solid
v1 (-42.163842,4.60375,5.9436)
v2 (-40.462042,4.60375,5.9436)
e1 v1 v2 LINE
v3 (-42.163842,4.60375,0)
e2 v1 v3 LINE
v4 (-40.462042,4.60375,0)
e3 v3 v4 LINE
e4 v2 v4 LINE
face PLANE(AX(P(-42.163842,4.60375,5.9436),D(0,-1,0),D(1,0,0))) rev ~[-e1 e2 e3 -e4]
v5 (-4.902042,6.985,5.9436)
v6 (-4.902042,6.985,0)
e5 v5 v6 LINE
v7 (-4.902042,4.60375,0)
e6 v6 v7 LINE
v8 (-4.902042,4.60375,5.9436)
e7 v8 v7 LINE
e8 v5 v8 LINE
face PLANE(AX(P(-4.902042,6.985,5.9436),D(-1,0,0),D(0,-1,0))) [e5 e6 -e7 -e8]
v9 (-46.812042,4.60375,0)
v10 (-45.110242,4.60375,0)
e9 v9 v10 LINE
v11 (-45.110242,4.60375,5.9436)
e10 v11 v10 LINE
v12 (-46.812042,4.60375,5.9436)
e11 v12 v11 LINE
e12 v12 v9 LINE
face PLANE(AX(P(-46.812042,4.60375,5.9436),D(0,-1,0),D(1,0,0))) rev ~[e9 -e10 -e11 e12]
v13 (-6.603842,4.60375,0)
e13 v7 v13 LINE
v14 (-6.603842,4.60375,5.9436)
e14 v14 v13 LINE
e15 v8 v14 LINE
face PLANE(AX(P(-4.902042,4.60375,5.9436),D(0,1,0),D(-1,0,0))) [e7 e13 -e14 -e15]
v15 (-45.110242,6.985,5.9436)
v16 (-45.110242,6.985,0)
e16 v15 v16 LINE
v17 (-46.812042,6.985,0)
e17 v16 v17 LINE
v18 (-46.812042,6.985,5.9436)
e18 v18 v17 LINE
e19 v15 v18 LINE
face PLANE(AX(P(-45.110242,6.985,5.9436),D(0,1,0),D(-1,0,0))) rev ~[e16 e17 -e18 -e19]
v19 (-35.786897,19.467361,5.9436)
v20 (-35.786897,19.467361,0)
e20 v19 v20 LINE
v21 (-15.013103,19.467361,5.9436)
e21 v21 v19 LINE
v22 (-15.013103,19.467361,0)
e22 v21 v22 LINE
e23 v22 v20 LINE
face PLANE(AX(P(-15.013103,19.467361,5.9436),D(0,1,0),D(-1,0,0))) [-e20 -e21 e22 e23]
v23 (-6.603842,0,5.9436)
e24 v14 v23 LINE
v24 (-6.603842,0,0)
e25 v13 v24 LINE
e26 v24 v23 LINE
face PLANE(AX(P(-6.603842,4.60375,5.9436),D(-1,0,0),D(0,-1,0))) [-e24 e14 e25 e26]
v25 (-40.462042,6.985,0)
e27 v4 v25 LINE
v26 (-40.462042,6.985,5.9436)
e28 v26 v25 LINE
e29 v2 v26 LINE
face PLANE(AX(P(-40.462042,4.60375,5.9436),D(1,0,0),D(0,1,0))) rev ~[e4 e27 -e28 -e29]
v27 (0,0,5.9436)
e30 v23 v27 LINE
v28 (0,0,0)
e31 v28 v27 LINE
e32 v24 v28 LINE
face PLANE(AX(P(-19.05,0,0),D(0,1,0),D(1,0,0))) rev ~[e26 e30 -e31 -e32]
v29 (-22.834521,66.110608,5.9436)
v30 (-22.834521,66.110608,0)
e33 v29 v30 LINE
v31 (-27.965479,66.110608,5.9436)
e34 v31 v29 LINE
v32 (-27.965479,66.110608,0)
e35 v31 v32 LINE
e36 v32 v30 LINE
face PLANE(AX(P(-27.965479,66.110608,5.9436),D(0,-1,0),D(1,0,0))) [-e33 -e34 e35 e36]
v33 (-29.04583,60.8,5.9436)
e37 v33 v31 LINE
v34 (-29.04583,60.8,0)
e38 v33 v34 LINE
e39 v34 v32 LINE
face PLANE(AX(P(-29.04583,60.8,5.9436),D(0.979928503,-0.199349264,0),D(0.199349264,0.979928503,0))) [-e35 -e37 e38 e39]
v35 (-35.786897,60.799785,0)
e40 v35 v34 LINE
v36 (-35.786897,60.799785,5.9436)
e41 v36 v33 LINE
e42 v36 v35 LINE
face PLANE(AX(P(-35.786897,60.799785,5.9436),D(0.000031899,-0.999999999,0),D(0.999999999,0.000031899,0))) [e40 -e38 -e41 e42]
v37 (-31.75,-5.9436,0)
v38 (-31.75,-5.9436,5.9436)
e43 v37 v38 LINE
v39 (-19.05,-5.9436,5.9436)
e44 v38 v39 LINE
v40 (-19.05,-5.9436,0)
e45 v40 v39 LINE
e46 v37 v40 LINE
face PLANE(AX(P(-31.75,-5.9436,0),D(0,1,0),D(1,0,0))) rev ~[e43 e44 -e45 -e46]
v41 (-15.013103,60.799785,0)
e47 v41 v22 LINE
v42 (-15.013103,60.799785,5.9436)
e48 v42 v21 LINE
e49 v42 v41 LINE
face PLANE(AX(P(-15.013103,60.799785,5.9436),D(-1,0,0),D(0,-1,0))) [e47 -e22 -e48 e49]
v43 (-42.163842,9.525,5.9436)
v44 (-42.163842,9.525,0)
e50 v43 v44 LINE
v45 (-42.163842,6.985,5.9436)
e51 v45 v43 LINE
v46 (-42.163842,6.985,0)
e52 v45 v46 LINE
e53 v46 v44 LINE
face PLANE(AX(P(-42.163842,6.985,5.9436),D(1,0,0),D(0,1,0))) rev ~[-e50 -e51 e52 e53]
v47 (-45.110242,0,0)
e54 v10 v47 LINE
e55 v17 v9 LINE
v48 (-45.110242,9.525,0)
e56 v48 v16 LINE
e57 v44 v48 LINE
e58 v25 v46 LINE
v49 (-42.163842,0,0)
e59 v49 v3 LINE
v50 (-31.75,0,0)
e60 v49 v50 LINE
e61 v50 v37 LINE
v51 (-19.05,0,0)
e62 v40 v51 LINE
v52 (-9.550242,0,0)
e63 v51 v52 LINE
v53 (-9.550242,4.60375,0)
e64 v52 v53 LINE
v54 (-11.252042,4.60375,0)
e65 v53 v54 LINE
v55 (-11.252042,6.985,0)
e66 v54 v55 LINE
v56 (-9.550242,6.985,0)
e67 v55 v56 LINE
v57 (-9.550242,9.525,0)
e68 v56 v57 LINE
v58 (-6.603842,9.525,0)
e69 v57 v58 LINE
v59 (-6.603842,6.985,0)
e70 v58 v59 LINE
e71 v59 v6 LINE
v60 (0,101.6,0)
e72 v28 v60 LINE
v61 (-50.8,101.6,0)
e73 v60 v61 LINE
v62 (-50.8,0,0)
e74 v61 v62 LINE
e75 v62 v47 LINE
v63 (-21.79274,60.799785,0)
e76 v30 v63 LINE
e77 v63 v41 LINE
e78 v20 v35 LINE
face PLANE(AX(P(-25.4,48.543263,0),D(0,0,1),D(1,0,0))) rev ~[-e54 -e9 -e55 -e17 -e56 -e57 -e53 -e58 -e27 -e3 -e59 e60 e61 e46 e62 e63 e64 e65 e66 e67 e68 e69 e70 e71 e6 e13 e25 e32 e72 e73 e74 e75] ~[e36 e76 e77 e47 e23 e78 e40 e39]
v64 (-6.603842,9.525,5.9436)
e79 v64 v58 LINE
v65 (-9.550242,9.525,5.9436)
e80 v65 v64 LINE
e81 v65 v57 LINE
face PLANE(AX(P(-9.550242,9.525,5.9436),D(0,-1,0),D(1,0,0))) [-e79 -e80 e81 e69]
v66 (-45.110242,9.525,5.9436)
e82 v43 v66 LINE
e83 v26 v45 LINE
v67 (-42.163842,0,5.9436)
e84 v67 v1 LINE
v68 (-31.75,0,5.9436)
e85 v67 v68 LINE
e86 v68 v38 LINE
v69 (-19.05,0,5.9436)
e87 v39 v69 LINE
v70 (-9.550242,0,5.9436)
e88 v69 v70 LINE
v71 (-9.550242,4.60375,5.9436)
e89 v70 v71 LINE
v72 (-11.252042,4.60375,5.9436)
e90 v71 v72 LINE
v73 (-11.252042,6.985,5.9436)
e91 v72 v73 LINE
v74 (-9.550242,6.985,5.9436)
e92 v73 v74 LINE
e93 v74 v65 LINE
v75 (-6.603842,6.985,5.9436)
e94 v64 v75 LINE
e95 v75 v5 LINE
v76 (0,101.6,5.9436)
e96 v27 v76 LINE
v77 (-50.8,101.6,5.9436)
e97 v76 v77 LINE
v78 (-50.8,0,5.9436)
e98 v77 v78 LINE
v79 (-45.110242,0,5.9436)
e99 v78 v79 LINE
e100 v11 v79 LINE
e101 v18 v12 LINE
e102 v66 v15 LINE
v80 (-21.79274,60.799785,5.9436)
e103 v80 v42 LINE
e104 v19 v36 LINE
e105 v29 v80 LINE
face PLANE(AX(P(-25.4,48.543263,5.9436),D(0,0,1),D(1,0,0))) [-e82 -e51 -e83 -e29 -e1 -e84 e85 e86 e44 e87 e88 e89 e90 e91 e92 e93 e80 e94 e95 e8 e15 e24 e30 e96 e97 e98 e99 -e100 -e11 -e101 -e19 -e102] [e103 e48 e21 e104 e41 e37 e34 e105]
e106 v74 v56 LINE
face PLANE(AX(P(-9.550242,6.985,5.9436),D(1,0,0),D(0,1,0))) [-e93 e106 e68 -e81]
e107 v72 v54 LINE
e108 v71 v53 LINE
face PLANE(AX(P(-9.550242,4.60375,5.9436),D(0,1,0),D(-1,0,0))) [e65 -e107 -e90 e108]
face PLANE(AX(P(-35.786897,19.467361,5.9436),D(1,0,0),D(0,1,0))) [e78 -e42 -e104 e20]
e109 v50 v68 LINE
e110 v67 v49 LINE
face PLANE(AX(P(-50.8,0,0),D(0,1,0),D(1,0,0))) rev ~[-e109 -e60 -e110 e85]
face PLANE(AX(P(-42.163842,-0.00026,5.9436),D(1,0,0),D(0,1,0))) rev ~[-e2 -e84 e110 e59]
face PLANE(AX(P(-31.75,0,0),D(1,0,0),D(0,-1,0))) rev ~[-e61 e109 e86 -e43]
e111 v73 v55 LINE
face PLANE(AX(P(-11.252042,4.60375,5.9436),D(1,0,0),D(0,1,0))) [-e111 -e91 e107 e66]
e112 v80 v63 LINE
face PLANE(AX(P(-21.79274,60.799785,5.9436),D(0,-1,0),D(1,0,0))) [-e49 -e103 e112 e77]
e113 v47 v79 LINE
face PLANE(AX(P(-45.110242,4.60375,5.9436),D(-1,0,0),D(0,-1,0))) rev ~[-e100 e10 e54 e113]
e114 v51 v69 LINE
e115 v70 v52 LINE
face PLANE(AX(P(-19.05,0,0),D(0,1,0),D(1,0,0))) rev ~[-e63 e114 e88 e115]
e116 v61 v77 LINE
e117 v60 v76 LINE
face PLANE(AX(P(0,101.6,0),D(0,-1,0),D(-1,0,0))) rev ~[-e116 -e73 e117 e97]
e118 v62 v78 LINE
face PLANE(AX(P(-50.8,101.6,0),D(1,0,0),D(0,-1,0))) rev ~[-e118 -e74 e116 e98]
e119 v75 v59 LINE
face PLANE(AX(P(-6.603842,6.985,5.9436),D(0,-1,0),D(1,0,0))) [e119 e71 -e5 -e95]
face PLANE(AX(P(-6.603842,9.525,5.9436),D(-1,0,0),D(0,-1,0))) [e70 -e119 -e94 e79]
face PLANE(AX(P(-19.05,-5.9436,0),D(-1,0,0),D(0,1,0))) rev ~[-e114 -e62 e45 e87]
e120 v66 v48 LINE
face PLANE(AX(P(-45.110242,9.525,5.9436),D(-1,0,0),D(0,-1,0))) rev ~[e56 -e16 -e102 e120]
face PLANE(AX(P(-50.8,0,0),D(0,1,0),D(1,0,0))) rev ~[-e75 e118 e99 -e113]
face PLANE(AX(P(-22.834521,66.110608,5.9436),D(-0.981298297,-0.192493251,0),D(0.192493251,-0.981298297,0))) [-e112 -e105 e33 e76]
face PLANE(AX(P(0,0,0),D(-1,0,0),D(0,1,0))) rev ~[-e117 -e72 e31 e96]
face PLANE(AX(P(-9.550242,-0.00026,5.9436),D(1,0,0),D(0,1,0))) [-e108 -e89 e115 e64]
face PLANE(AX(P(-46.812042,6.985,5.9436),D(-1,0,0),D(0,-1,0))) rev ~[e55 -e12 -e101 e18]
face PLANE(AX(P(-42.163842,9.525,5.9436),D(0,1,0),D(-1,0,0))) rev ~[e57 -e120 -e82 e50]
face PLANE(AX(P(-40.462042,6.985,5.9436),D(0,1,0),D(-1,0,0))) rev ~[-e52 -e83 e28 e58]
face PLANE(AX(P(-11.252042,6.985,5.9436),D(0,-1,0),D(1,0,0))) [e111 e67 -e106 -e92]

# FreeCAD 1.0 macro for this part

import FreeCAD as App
import Part
import Sketcher
Q = App.Units.Quantity


def add_polygon(sketch, points):
    """Adds a closed chain of lines whose ends are joined by coincident constraints."""
    first, n = sketch.GeometryCount, len(points)
    for a, b in zip(points, points[1:] + points[:1]):
        sketch.addGeometry(Part.LineSegment(App.Vector(*a, 0), App.Vector(*b, 0)), False)
    for i in range(n):
        sketch.addConstraint(Sketcher.Constraint("Coincident", first + i, 2, first + (i + 1) % n, 1))

doc = App.newDocument("Part")
params = doc.addObject("Spreadsheet::Sheet", "Params")
for row, (alias, value) in enumerate([
    ("sketch1_width", "2 in"),
    ("sketch1_height", "4 in"),
    ("sketch1_width2", "0.5 in"),
    ("sketch1_height2", "0.234 in"),
    ("pad1_length", "0.234 in"),
    ("sketch3_height", "0.1 in"),
    ("sketch3_width", "0.116 in"),
    ("sketch3_width2", "0.067 in"),
    ("sketch3_height2", "0.09375 in"),
], start=1):
    params.set(f"A{row}", alias)
    params.set(f"B{row}", "=" + value)
    params.setAlias(f"B{row}", alias)

body = doc.addObject("PartDesign::Body", "Body")

# Sketch on XY plane
sketch1 = body.newObject("Sketcher::SketchObject", "Sketch")
sketch1.AttachmentSupport = (doc.getObject("XY_Plane"), [""])
sketch1.MapMode = "FlatFace"
add_polygon(sketch1, [(0, 0), (0, 102), (-51, 102), (-51, 0), (-32, 0), (-32, -6), (-19, -6), (-19, 0)])  # lines 0-7
sketch1.addConstraint([
    Sketcher.Constraint("Vertical", 0),
    Sketcher.Constraint("Horizontal", 1),
    Sketcher.Constraint("Vertical", 2),
    Sketcher.Constraint("Horizontal", 3),
    Sketcher.Constraint("Vertical", 4),
    Sketcher.Constraint("Horizontal", 5),
    Sketcher.Constraint("Vertical", 6),
    Sketcher.Constraint("Horizontal", 7),
    Sketcher.Constraint("Coincident", 7, 2, -1, 1),
    Sketcher.Constraint("PointOnObject", 2, 2, -1),
    Sketcher.Constraint("Equal", 3, 7),
    Sketcher.Constraint("DistanceX", 1, 2, 1, 1, Q("2 in")),
    Sketcher.Constraint("DistanceY", 0, 1, 0, 2, Q("4 in")),
    Sketcher.Constraint("DistanceX", 5, 1, 5, 2, Q("0.5 in")),
    Sketcher.Constraint("DistanceY", 4, 2, 4, 1, Q("0.234 in")),
])
sketch1.setExpression("Constraints[19]", "Params.sketch1_width")
sketch1.setExpression("Constraints[20]", "Params.sketch1_height")
sketch1.setExpression("Constraints[21]", "Params.sketch1_width2")
sketch1.setExpression("Constraints[22]", "Params.sketch1_height2")
pad1 = body.newObject("PartDesign::Pad", "Pad")
pad1.Profile = sketch1
pad1.setExpression("Length", "Params.pad1_length")

# Sketch on XY plane
sketch2 = body.newObject("Sketcher::SketchObject", "Sketch001")
sketch2.AttachmentSupport = (doc.getObject("XY_Plane"), [""])
sketch2.MapMode = "FlatFace"
sketch2.AttachmentOffset = App.Placement(App.Vector(0, 0, 0.234 * 25.4), App.Rotation())
add_polygon(sketch2, [(-23, 66), (-28, 66), (-29, 61), (-36, 61), (-36, 19), (-15, 19), (-15, 61), (-22, 61)])  # lines 0-7
sketch2.addConstraint([
    Sketcher.Constraint("Horizontal", 0),
    Sketcher.Constraint("Vertical", 3),
    Sketcher.Constraint("Horizontal", 4),
    Sketcher.Constraint("Vertical", 5),
    Sketcher.Constraint("Horizontal", 6),
    Sketcher.Constraint("Horizontal", 2, 2, 5, 2),
    Sketcher.Constraint("DistanceX", 0, 2, 0, 1, Q("5.130959 mm")),
    Sketcher.Constraint("DistanceY", -1, 1, 1, 2, Q("60.8 mm")),
    Sketcher.Constraint("DistanceX", 4, 1, 4, 2, Q("20.773794 mm")),
    Sketcher.Constraint("DistanceX", 6, 2, 6, 1, Q("6.779637 mm")),
    Sketcher.Constraint("DistanceY", 3, 2, 3, 1, Q("41.332424 mm")),
    Sketcher.Constraint("DistanceX", 0, 2, -1, 1, Q("27.965479 mm")),
    Sketcher.Constraint("DistanceY", -1, 1, 0, 2, Q("66.110608 mm")),
    Sketcher.Constraint("DistanceX", 1, 2, -1, 1, Q("29.04583 mm")),
    Sketcher.Constraint("DistanceY", -1, 1, 3, 2, Q("19.467361 mm")),
    Sketcher.Constraint("DistanceX", 6, 2, -1, 1, Q("21.79274 mm")),
])
pocket1 = body.newObject("PartDesign::Pocket", "Pocket")
pocket1.Profile = sketch2
pocket1.Type = "ThroughAll"

# Sketch on XY plane
sketch3 = body.newObject("Sketcher::SketchObject", "Sketch002")
sketch3.AttachmentSupport = (doc.getObject("XY_Plane"), [""])
sketch3.MapMode = "FlatFace"
sketch3.AttachmentOffset = App.Placement(App.Vector(0, 0, 0.234 * 25.4), App.Rotation())
add_polygon(sketch3, [(-9.6, 4.6), (-9.6, 0), (-6.6, 0), (-6.6, 4.6), (-4.9, 4.6), (-4.9, 7), (-6.6, 7), (-6.6, 9.5), (-9.6, 9.5), (-9.6, 7), (-11.3, 7), (-11.3, 4.6)])  # lines 0-11
add_polygon(sketch3, [(-46.8, 4.6), (-45.1, 4.6), (-45.1, 0), (-42.2, 0), (-42.2, 4.6), (-40.5, 4.6), (-40.5, 7), (-42.2, 7), (-42.2, 9.5), (-45.1, 9.5), (-45.1, 7), (-46.8, 7)])  # lines 12-23
sketch3.addConstraint([
    Sketcher.Constraint("Vertical", 0),
    Sketcher.Constraint("Horizontal", 1),
    Sketcher.Constraint("Vertical", 2),
    Sketcher.Constraint("Horizontal", 3),
    Sketcher.Constraint("Vertical", 4),
    Sketcher.Constraint("Horizontal", 5),
    Sketcher.Constraint("Vertical", 6),
    Sketcher.Constraint("Horizontal", 7),
    Sketcher.Constraint("Vertical", 8),
    Sketcher.Constraint("Horizontal", 9),
    Sketcher.Constraint("Vertical", 10),
    Sketcher.Constraint("Horizontal", 11),
    Sketcher.Constraint("Horizontal", 12),
    Sketcher.Constraint("Vertical", 13),
    Sketcher.Constraint("Horizontal", 14),
    Sketcher.Constraint("Vertical", 15),
    Sketcher.Constraint("Horizontal", 16),
    Sketcher.Constraint("Vertical", 17),
    Sketcher.Constraint("Horizontal", 18),
    Sketcher.Constraint("Vertical", 19),
    Sketcher.Constraint("Horizontal", 20),
    Sketcher.Constraint("Vertical", 21),
    Sketcher.Constraint("Horizontal", 22),
    Sketcher.Constraint("Vertical", 23),
    Sketcher.Constraint("Horizontal", 5, 2, 8, 2),
    Sketcher.Constraint("Horizontal", 3, 2, 10, 2),
    Sketcher.Constraint("Horizontal", 11, 2, 12, 2),
    Sketcher.Constraint("Horizontal", 1, 2, 13, 2),
    Sketcher.Constraint("Horizontal", 12, 2, 15, 2),
    Sketcher.Constraint("Horizontal", 9, 2, 17, 2),
    Sketcher.Constraint("Horizontal", 7, 2, 19, 2),
    Sketcher.Constraint("Horizontal", 18, 2, 21, 2),
    Sketcher.Constraint("Vertical", 2, 2, 5, 2),
    Sketcher.Constraint("Vertical", 0, 2, 7, 2),
    Sketcher.Constraint("Vertical", 15, 2, 18, 2),
    Sketcher.Constraint("Vertical", 13, 2, 20, 2),
    Sketcher.Constraint("Equal", 5, 9),
    Sketcher.Constraint("Equal", 11, 12),
    Sketcher.Constraint("Equal", 7, 14),
    Sketcher.Constraint("Equal", 12, 16),
    Sketcher.Constraint("DistanceY", 6, 1, 6, 2, Q("0.1 in")),
    Sketcher.Constraint("DistanceX", 12, 2, 11, 2, Q("1.4 in")),
    Sketcher.Constraint("DistanceX", 1, 1, 1, 2, Q("0.116 in")),
    Sketcher.Constraint("DistanceX", 3, 1, 3, 2, Q("0.067 in")),
    Sketcher.Constraint("DistanceY", 4, 1, 4, 2, Q("0.09375 in")),
    Sketcher.Constraint("DistanceY", -1, 1, 4, 2, Q("0.275 in")),
    Sketcher.Constraint("DistanceY", 0, 2, 0, 1, Q("4.60401 mm")),
    Sketcher.Constraint("DistanceX", 0, 2, -1, 1, Q("9.550242 mm")),
])
sketch3.setExpression("Constraints[64]", "Params.sketch3_height")
sketch3.setExpression("Constraints[66]", "Params.sketch3_width")
sketch3.setExpression("Constraints[67]", "Params.sketch3_width2")
sketch3.setExpression("Constraints[68]", "Params.sketch3_height2")
pocket2 = body.newObject("PartDesign::Pocket", "Pocket001")
pocket2.Profile = sketch3
pocket2.Type = "ThroughAll"

doc.recompute()
